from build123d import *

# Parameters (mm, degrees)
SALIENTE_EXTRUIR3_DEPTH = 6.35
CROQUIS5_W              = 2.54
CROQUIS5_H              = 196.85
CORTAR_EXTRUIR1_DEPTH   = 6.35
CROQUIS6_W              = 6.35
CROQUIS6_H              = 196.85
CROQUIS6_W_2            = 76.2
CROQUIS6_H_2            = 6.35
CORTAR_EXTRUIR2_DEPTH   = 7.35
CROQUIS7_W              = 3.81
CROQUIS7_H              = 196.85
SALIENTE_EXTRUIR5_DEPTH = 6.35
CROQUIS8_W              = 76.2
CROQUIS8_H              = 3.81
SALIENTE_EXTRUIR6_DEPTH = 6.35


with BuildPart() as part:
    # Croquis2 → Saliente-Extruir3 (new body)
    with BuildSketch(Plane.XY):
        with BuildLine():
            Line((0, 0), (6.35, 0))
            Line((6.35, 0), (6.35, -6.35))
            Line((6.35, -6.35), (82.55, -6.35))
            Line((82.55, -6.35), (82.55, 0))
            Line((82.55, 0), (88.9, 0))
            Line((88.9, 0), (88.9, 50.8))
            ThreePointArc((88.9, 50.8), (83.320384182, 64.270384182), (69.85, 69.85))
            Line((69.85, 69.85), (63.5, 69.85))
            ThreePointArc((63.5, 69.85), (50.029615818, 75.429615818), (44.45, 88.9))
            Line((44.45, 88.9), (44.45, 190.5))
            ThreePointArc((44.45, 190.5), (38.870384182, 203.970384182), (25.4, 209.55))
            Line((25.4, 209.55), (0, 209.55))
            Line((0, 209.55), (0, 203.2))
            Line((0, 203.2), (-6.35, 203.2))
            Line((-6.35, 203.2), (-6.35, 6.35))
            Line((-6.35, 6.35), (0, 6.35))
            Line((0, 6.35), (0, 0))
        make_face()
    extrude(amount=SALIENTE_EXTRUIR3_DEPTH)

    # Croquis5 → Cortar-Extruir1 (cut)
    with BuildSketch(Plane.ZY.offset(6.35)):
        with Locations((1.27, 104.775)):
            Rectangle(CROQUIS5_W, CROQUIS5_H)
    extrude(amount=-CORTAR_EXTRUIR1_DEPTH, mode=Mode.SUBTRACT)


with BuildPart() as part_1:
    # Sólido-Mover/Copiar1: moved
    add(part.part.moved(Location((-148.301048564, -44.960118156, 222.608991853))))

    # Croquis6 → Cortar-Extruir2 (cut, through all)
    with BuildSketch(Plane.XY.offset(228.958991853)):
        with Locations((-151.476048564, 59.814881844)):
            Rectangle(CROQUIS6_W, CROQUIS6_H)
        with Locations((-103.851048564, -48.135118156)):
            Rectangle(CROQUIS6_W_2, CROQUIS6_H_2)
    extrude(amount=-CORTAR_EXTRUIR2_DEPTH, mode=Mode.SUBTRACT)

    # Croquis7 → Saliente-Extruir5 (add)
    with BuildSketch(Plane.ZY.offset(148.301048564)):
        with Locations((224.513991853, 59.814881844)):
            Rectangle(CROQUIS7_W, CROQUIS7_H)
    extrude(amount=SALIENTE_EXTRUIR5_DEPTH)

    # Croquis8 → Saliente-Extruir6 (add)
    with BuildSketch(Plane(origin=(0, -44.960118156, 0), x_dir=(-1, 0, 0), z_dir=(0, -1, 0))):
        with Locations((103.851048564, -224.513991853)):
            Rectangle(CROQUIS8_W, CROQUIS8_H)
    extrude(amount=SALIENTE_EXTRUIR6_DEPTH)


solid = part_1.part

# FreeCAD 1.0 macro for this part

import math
import FreeCAD as App
import Part
import Sketcher

V = App.Vector
Q = App.Units.Quantity


def add_polygon(sketch, points):
    """Adds a closed chain of lines whose ends are joined by coincident constraints."""
    first, n = sketch.GeometryCount, len(points)
    for a, b in zip(points, points[1:] + points[:1]):
        sketch.addGeometry(Part.LineSegment(App.Vector(*a, 0), App.Vector(*b, 0)), False)
    for i in range(n):
        sketch.addConstraint(Sketcher.Constraint("Coincident", first + i, 2, first + (i + 1) % n, 1))

doc = App.newDocument("Part")
body = doc.addObject("PartDesign::Body", "Body")

sketch1 = body.newObject("Sketcher::SketchObject", "Sketch")
sketch1.AttachmentSupport = (doc.getObject("XY_Plane"), [""])
sketch1.MapMode = "FlatFace"
sketch1.addGeometry([
    Part.LineSegment(V(0, 0, 0), V(6.35, 0, 0)),
    Part.LineSegment(V(6.35, 0, 0), V(6.35, -6.35, 0)),
    Part.LineSegment(V(6.35, -6.35, 0), V(82.55, -6.35, 0)),
    Part.LineSegment(V(82.55, -6.35, 0), V(82.55, 0, 0)),
    Part.LineSegment(V(82.55, 0, 0), V(88.9, 0, 0)),
    Part.LineSegment(V(88.9, 0, 0), V(88.9, 50.8, 0)),
    Part.ArcOfCircle(Part.Circle(V(69.85, 50.8, 0), V(0, 0, 1), 19.05), math.radians(0), math.radians(90)),
    Part.LineSegment(V(69.85, 69.85, 0), V(63.5, 69.85, 0)),
    Part.ArcOfCircle(Part.Circle(V(63.5, 88.9, 0), V(0, 0, 1), 19.05), math.radians(180), math.radians(270)),
    Part.LineSegment(V(44.45, 88.9, 0), V(44.45, 190.5, 0)),
    Part.ArcOfCircle(Part.Circle(V(25.4, 190.5, 0), V(0, 0, 1), 19.05), math.radians(0), math.radians(90)),
    Part.LineSegment(V(25.4, 209.55, 0), V(0, 209.55, 0)),
    Part.LineSegment(V(0, 209.55, 0), V(0, 203.2, 0)),
    Part.LineSegment(V(0, 203.2, 0), V(-6.35, 203.2, 0)),
    Part.LineSegment(V(-6.35, 203.2, 0), V(-6.35, 6.35, 0)),
    Part.LineSegment(V(-6.35, 6.35, 0), V(0, 6.35, 0)),
    Part.LineSegment(V(0, 6.35, 0), V(0, 0, 0)),
], False)
sketch1.addConstraint([
    Sketcher.Constraint("Coincident", 0, 2, 1, 1),
    Sketcher.Constraint("Coincident", 1, 2, 2, 1),
    Sketcher.Constraint("Coincident", 2, 2, 3, 1),
    Sketcher.Constraint("Coincident", 3, 2, 4, 1),
    Sketcher.Constraint("Coincident", 4, 2, 5, 1),
    Sketcher.Constraint("Tangent", 5, 2, 6, 1),
    Sketcher.Constraint("Tangent", 6, 2, 7, 1),
    Sketcher.Constraint("Tangent", 7, 2, 8, 2),
    Sketcher.Constraint("Tangent", 8, 1, 9, 1),
    Sketcher.Constraint("Tangent", 9, 2, 10, 1),
    Sketcher.Constraint("Tangent", 10, 2, 11, 1),
    Sketcher.Constraint("Coincident", 11, 2, 12, 1),
    Sketcher.Constraint("Coincident", 12, 2, 13, 1),
    Sketcher.Constraint("Coincident", 13, 2, 14, 1),
    Sketcher.Constraint("Coincident", 14, 2, 15, 1),
    Sketcher.Constraint("Coincident", 15, 2, 16, 1),
    Sketcher.Constraint("Coincident", 16, 2, 0, 1),
    Sketcher.Constraint("Horizontal", 0),
    Sketcher.Constraint("Vertical", 1),
    Sketcher.Constraint("Horizontal", 2),
    Sketcher.Constraint("Vertical", 3),
    Sketcher.Constraint("Horizontal", 4),
    Sketcher.Constraint("Vertical", 5),
    Sketcher.Constraint("Horizontal", 7),
    Sketcher.Constraint("Vertical", 9),
    Sketcher.Constraint("Horizontal", 11),
    Sketcher.Constraint("Vertical", 12),
    Sketcher.Constraint("Horizontal", 13),
    Sketcher.Constraint("Vertical", 14),
    Sketcher.Constraint("Horizontal", 15),
    Sketcher.Constraint("Vertical", 16),
    Sketcher.Constraint("Coincident", 16, 2, -1, 1),
    Sketcher.Constraint("Equal", 6, 8),
    Sketcher.Constraint("Equal", 8, 10),
    Sketcher.Constraint("Symmetric", 1, 2, 14, 2, -1, 1),
    Sketcher.Constraint("PointOnObject", 3, 2, -1),
    Sketcher.Constraint("PointOnObject", 11, 2, -2),
    Sketcher.Constraint("Equal", 0, 4),
    Sketcher.Constraint("Equal", 4, 7),
    Sketcher.Constraint("Equal", 15, 1),
    Sketcher.Constraint("Equal", 3, 12),
    Sketcher.Constraint("DistanceX", 2, 1, 2, 2, Q("3 in")),
    Sketcher.Constraint("DistanceX", 11, 2, 11, 1, Q("1 in")),
    Sketcher.Constraint("DistanceY", 5, 1, 5, 2, Q("2 in")),
    Sketcher.Constraint("DistanceY", 9, 1, 9, 2, Q("4 in")),
    Sketcher.Constraint("Radius", 6, Q("0.75 in")),
])
pad1 = body.newObject("PartDesign::Pad", "Pad")
pad1.Profile = sketch1
pad1.Length = Q("0.25 in")

sketch2 = body.newObject("Sketcher::SketchObject", "Sketch001")
sketch2.AttachmentSupport = (doc.getObject("YZ_Plane"), [""])
sketch2.MapMode = "FlatFace"
sketch2.AttachmentOffset = App.Placement(V(0, 0, -0.25 * 25.4), App.Rotation())
add_polygon(sketch2, [(203.2, 0), (6.35, 0), (6.35, 2.54), (203.2, 2.54)])
sketch2.addConstraint([
    Sketcher.Constraint("Horizontal", 0),
    Sketcher.Constraint("Vertical", 1),
    Sketcher.Constraint("Horizontal", 2),
    Sketcher.Constraint("Vertical", 3),
    Sketcher.Constraint("PointOnObject", 0, 2, -1),
    Sketcher.Constraint("DistanceY", 1, 1, 1, 2, Q("0.1 in")),
    Sketcher.Constraint("DistanceX", -1, 1, 2, 2, Q("8 in")),
    Sketcher.Constraint("DistanceX", 0, 2, 0, 1, Q("7.75 in")),
])
pocket1 = body.newObject("PartDesign::Pocket", "Pocket")
pocket1.Profile = sketch2
pocket1.Length = Q("0.25 in")
pocket1.Reversed = True
body2 = doc.addObject("PartDesign::Body", "Body001")
doc.recompute()

body.Placement = App.Placement(V(-148.301049, -44.960118, 222.608992), App.Rotation(V(0, 0, 1), 0))
boolean = body2.newObject("PartDesign::Boolean", "Boolean")
boolean.Type = "Fuse"
boolean.addObjects([body])

sketch3 = body2.newObject("Sketcher::SketchObject", "Sketch002")
sketch3.AttachmentSupport = (doc.getObject("XY_Plane001"), [""])
sketch3.MapMode = "FlatFace"
sketch3.AttachmentOffset = App.Placement(V(0, 0, 228.958992), App.Rotation())
add_polygon(sketch3, [(-154.651049, 158.239882), (-154.651049, -38.610118), (-148.301049, -38.610118), (-148.301049, 158.239882)])
add_polygon(sketch3, [(-141.951049, -44.960118), (-141.951049, -51.310118), (-65.751049, -51.310118), (-65.751049, -44.960118)])
sketch3.addConstraint([
    Sketcher.Constraint("Vertical", 0),
    Sketcher.Constraint("Horizontal", 1),
    Sketcher.Constraint("Vertical", 2),
    Sketcher.Constraint("Horizontal", 3),
    Sketcher.Constraint("Vertical", 4),
    Sketcher.Constraint("Horizontal", 5),
    Sketcher.Constraint("Vertical", 6),
    Sketcher.Constraint("Horizontal", 7),
    Sketcher.Constraint("Equal", 3, 4),
    Sketcher.Constraint("DistanceX", 5, 1, 5, 2, Q("3 in")),
    Sketcher.Constraint("DistanceY", 6, 2, 2, 2, Q("8 in")),
    Sketcher.Constraint("DistanceX", 1, 1, 1, 2, Q("0.25 in")),
    Sketcher.Constraint("DistanceY", 0, 2, 0, 1, Q("7.75 in")),
    Sketcher.Constraint("DistanceX", 0, 2, 4, 2, Q("0.5 in")),
    Sketcher.Constraint("DistanceX", 0, 2, -1, 1, 154.651049),
    Sketcher.Constraint("DistanceY", 0, 2, -1, 1, 38.610118),
])
pocket2 = body2.newObject("PartDesign::Pocket", "Pocket001")
pocket2.Profile = sketch3
pocket2.Type = "ThroughAll"

sketch4 = body2.newObject("Sketcher::SketchObject", "Sketch003")
sketch4.AttachmentSupport = (doc.getObject("YZ_Plane001"), [""])
sketch4.MapMode = "FlatFace"
sketch4.AttachmentOffset = App.Placement(V(0, 0, -148.301049), App.Rotation())
add_polygon(sketch4, [(158.239882, 222.608992), (-38.610118, 222.608992), (-38.610118, 226.418992), (158.239882, 226.418992)])
sketch4.addConstraint([
    Sketcher.Constraint("Horizontal", 0),
    Sketcher.Constraint("Vertical", 1),
    Sketcher.Constraint("Horizontal", 2),
    Sketcher.Constraint("Vertical", 3),
    Sketcher.Constraint("DistanceX", 0, 2, 0, 1, Q("7.75 in")),
    Sketcher.Constraint("DistanceY", 1, 1, 1, 2, Q("0.15 in")),
    Sketcher.Constraint("DistanceX", 0, 2, -1, 1, 38.610118),
    Sketcher.Constraint("DistanceY", -1, 1, 0, 2, 222.608992),
])
pad2 = body2.newObject("PartDesign::Pad", "Pad001")
pad2.Profile = sketch4
pad2.Length = Q("0.25 in")
pad2.Reversed = True

sketch5 = body2.newObject("Sketcher::SketchObject", "Sketch004")
sketch5.AttachmentSupport = (doc.getObject("XZ_Plane001"), [""])
sketch5.MapMode = "FlatFace"
sketch5.AttachmentOffset = App.Placement(V(0, 0, 44.960118), App.Rotation())
add_polygon(sketch5, [(-65.751049, 222.608992), (-65.751049, 226.418992), (-141.951049, 226.418992), (-141.951049, 222.608992)])
sketch5.addConstraint([
    Sketcher.Constraint("Vertical", 0),
    Sketcher.Constraint("Horizontal", 1),
    Sketcher.Constraint("Vertical", 2),
    Sketcher.Constraint("Horizontal", 3),
    Sketcher.Constraint("DistanceX", 1, 2, 1, 1, Q("3 in")),
    Sketcher.Constraint("DistanceY", 0, 1, 0, 2, Q("0.15 in")),
    Sketcher.Constraint("DistanceX", 0, 2, -1, 1, 65.751049),
    Sketcher.Constraint("DistanceY", -1, 1, 0, 2, 226.418992),
])
pad3 = body2.newObject("PartDesign::Pad", "Pad002")
pad3.Profile = sketch5
pad3.Length = Q("0.25 in")

doc.recompute()
